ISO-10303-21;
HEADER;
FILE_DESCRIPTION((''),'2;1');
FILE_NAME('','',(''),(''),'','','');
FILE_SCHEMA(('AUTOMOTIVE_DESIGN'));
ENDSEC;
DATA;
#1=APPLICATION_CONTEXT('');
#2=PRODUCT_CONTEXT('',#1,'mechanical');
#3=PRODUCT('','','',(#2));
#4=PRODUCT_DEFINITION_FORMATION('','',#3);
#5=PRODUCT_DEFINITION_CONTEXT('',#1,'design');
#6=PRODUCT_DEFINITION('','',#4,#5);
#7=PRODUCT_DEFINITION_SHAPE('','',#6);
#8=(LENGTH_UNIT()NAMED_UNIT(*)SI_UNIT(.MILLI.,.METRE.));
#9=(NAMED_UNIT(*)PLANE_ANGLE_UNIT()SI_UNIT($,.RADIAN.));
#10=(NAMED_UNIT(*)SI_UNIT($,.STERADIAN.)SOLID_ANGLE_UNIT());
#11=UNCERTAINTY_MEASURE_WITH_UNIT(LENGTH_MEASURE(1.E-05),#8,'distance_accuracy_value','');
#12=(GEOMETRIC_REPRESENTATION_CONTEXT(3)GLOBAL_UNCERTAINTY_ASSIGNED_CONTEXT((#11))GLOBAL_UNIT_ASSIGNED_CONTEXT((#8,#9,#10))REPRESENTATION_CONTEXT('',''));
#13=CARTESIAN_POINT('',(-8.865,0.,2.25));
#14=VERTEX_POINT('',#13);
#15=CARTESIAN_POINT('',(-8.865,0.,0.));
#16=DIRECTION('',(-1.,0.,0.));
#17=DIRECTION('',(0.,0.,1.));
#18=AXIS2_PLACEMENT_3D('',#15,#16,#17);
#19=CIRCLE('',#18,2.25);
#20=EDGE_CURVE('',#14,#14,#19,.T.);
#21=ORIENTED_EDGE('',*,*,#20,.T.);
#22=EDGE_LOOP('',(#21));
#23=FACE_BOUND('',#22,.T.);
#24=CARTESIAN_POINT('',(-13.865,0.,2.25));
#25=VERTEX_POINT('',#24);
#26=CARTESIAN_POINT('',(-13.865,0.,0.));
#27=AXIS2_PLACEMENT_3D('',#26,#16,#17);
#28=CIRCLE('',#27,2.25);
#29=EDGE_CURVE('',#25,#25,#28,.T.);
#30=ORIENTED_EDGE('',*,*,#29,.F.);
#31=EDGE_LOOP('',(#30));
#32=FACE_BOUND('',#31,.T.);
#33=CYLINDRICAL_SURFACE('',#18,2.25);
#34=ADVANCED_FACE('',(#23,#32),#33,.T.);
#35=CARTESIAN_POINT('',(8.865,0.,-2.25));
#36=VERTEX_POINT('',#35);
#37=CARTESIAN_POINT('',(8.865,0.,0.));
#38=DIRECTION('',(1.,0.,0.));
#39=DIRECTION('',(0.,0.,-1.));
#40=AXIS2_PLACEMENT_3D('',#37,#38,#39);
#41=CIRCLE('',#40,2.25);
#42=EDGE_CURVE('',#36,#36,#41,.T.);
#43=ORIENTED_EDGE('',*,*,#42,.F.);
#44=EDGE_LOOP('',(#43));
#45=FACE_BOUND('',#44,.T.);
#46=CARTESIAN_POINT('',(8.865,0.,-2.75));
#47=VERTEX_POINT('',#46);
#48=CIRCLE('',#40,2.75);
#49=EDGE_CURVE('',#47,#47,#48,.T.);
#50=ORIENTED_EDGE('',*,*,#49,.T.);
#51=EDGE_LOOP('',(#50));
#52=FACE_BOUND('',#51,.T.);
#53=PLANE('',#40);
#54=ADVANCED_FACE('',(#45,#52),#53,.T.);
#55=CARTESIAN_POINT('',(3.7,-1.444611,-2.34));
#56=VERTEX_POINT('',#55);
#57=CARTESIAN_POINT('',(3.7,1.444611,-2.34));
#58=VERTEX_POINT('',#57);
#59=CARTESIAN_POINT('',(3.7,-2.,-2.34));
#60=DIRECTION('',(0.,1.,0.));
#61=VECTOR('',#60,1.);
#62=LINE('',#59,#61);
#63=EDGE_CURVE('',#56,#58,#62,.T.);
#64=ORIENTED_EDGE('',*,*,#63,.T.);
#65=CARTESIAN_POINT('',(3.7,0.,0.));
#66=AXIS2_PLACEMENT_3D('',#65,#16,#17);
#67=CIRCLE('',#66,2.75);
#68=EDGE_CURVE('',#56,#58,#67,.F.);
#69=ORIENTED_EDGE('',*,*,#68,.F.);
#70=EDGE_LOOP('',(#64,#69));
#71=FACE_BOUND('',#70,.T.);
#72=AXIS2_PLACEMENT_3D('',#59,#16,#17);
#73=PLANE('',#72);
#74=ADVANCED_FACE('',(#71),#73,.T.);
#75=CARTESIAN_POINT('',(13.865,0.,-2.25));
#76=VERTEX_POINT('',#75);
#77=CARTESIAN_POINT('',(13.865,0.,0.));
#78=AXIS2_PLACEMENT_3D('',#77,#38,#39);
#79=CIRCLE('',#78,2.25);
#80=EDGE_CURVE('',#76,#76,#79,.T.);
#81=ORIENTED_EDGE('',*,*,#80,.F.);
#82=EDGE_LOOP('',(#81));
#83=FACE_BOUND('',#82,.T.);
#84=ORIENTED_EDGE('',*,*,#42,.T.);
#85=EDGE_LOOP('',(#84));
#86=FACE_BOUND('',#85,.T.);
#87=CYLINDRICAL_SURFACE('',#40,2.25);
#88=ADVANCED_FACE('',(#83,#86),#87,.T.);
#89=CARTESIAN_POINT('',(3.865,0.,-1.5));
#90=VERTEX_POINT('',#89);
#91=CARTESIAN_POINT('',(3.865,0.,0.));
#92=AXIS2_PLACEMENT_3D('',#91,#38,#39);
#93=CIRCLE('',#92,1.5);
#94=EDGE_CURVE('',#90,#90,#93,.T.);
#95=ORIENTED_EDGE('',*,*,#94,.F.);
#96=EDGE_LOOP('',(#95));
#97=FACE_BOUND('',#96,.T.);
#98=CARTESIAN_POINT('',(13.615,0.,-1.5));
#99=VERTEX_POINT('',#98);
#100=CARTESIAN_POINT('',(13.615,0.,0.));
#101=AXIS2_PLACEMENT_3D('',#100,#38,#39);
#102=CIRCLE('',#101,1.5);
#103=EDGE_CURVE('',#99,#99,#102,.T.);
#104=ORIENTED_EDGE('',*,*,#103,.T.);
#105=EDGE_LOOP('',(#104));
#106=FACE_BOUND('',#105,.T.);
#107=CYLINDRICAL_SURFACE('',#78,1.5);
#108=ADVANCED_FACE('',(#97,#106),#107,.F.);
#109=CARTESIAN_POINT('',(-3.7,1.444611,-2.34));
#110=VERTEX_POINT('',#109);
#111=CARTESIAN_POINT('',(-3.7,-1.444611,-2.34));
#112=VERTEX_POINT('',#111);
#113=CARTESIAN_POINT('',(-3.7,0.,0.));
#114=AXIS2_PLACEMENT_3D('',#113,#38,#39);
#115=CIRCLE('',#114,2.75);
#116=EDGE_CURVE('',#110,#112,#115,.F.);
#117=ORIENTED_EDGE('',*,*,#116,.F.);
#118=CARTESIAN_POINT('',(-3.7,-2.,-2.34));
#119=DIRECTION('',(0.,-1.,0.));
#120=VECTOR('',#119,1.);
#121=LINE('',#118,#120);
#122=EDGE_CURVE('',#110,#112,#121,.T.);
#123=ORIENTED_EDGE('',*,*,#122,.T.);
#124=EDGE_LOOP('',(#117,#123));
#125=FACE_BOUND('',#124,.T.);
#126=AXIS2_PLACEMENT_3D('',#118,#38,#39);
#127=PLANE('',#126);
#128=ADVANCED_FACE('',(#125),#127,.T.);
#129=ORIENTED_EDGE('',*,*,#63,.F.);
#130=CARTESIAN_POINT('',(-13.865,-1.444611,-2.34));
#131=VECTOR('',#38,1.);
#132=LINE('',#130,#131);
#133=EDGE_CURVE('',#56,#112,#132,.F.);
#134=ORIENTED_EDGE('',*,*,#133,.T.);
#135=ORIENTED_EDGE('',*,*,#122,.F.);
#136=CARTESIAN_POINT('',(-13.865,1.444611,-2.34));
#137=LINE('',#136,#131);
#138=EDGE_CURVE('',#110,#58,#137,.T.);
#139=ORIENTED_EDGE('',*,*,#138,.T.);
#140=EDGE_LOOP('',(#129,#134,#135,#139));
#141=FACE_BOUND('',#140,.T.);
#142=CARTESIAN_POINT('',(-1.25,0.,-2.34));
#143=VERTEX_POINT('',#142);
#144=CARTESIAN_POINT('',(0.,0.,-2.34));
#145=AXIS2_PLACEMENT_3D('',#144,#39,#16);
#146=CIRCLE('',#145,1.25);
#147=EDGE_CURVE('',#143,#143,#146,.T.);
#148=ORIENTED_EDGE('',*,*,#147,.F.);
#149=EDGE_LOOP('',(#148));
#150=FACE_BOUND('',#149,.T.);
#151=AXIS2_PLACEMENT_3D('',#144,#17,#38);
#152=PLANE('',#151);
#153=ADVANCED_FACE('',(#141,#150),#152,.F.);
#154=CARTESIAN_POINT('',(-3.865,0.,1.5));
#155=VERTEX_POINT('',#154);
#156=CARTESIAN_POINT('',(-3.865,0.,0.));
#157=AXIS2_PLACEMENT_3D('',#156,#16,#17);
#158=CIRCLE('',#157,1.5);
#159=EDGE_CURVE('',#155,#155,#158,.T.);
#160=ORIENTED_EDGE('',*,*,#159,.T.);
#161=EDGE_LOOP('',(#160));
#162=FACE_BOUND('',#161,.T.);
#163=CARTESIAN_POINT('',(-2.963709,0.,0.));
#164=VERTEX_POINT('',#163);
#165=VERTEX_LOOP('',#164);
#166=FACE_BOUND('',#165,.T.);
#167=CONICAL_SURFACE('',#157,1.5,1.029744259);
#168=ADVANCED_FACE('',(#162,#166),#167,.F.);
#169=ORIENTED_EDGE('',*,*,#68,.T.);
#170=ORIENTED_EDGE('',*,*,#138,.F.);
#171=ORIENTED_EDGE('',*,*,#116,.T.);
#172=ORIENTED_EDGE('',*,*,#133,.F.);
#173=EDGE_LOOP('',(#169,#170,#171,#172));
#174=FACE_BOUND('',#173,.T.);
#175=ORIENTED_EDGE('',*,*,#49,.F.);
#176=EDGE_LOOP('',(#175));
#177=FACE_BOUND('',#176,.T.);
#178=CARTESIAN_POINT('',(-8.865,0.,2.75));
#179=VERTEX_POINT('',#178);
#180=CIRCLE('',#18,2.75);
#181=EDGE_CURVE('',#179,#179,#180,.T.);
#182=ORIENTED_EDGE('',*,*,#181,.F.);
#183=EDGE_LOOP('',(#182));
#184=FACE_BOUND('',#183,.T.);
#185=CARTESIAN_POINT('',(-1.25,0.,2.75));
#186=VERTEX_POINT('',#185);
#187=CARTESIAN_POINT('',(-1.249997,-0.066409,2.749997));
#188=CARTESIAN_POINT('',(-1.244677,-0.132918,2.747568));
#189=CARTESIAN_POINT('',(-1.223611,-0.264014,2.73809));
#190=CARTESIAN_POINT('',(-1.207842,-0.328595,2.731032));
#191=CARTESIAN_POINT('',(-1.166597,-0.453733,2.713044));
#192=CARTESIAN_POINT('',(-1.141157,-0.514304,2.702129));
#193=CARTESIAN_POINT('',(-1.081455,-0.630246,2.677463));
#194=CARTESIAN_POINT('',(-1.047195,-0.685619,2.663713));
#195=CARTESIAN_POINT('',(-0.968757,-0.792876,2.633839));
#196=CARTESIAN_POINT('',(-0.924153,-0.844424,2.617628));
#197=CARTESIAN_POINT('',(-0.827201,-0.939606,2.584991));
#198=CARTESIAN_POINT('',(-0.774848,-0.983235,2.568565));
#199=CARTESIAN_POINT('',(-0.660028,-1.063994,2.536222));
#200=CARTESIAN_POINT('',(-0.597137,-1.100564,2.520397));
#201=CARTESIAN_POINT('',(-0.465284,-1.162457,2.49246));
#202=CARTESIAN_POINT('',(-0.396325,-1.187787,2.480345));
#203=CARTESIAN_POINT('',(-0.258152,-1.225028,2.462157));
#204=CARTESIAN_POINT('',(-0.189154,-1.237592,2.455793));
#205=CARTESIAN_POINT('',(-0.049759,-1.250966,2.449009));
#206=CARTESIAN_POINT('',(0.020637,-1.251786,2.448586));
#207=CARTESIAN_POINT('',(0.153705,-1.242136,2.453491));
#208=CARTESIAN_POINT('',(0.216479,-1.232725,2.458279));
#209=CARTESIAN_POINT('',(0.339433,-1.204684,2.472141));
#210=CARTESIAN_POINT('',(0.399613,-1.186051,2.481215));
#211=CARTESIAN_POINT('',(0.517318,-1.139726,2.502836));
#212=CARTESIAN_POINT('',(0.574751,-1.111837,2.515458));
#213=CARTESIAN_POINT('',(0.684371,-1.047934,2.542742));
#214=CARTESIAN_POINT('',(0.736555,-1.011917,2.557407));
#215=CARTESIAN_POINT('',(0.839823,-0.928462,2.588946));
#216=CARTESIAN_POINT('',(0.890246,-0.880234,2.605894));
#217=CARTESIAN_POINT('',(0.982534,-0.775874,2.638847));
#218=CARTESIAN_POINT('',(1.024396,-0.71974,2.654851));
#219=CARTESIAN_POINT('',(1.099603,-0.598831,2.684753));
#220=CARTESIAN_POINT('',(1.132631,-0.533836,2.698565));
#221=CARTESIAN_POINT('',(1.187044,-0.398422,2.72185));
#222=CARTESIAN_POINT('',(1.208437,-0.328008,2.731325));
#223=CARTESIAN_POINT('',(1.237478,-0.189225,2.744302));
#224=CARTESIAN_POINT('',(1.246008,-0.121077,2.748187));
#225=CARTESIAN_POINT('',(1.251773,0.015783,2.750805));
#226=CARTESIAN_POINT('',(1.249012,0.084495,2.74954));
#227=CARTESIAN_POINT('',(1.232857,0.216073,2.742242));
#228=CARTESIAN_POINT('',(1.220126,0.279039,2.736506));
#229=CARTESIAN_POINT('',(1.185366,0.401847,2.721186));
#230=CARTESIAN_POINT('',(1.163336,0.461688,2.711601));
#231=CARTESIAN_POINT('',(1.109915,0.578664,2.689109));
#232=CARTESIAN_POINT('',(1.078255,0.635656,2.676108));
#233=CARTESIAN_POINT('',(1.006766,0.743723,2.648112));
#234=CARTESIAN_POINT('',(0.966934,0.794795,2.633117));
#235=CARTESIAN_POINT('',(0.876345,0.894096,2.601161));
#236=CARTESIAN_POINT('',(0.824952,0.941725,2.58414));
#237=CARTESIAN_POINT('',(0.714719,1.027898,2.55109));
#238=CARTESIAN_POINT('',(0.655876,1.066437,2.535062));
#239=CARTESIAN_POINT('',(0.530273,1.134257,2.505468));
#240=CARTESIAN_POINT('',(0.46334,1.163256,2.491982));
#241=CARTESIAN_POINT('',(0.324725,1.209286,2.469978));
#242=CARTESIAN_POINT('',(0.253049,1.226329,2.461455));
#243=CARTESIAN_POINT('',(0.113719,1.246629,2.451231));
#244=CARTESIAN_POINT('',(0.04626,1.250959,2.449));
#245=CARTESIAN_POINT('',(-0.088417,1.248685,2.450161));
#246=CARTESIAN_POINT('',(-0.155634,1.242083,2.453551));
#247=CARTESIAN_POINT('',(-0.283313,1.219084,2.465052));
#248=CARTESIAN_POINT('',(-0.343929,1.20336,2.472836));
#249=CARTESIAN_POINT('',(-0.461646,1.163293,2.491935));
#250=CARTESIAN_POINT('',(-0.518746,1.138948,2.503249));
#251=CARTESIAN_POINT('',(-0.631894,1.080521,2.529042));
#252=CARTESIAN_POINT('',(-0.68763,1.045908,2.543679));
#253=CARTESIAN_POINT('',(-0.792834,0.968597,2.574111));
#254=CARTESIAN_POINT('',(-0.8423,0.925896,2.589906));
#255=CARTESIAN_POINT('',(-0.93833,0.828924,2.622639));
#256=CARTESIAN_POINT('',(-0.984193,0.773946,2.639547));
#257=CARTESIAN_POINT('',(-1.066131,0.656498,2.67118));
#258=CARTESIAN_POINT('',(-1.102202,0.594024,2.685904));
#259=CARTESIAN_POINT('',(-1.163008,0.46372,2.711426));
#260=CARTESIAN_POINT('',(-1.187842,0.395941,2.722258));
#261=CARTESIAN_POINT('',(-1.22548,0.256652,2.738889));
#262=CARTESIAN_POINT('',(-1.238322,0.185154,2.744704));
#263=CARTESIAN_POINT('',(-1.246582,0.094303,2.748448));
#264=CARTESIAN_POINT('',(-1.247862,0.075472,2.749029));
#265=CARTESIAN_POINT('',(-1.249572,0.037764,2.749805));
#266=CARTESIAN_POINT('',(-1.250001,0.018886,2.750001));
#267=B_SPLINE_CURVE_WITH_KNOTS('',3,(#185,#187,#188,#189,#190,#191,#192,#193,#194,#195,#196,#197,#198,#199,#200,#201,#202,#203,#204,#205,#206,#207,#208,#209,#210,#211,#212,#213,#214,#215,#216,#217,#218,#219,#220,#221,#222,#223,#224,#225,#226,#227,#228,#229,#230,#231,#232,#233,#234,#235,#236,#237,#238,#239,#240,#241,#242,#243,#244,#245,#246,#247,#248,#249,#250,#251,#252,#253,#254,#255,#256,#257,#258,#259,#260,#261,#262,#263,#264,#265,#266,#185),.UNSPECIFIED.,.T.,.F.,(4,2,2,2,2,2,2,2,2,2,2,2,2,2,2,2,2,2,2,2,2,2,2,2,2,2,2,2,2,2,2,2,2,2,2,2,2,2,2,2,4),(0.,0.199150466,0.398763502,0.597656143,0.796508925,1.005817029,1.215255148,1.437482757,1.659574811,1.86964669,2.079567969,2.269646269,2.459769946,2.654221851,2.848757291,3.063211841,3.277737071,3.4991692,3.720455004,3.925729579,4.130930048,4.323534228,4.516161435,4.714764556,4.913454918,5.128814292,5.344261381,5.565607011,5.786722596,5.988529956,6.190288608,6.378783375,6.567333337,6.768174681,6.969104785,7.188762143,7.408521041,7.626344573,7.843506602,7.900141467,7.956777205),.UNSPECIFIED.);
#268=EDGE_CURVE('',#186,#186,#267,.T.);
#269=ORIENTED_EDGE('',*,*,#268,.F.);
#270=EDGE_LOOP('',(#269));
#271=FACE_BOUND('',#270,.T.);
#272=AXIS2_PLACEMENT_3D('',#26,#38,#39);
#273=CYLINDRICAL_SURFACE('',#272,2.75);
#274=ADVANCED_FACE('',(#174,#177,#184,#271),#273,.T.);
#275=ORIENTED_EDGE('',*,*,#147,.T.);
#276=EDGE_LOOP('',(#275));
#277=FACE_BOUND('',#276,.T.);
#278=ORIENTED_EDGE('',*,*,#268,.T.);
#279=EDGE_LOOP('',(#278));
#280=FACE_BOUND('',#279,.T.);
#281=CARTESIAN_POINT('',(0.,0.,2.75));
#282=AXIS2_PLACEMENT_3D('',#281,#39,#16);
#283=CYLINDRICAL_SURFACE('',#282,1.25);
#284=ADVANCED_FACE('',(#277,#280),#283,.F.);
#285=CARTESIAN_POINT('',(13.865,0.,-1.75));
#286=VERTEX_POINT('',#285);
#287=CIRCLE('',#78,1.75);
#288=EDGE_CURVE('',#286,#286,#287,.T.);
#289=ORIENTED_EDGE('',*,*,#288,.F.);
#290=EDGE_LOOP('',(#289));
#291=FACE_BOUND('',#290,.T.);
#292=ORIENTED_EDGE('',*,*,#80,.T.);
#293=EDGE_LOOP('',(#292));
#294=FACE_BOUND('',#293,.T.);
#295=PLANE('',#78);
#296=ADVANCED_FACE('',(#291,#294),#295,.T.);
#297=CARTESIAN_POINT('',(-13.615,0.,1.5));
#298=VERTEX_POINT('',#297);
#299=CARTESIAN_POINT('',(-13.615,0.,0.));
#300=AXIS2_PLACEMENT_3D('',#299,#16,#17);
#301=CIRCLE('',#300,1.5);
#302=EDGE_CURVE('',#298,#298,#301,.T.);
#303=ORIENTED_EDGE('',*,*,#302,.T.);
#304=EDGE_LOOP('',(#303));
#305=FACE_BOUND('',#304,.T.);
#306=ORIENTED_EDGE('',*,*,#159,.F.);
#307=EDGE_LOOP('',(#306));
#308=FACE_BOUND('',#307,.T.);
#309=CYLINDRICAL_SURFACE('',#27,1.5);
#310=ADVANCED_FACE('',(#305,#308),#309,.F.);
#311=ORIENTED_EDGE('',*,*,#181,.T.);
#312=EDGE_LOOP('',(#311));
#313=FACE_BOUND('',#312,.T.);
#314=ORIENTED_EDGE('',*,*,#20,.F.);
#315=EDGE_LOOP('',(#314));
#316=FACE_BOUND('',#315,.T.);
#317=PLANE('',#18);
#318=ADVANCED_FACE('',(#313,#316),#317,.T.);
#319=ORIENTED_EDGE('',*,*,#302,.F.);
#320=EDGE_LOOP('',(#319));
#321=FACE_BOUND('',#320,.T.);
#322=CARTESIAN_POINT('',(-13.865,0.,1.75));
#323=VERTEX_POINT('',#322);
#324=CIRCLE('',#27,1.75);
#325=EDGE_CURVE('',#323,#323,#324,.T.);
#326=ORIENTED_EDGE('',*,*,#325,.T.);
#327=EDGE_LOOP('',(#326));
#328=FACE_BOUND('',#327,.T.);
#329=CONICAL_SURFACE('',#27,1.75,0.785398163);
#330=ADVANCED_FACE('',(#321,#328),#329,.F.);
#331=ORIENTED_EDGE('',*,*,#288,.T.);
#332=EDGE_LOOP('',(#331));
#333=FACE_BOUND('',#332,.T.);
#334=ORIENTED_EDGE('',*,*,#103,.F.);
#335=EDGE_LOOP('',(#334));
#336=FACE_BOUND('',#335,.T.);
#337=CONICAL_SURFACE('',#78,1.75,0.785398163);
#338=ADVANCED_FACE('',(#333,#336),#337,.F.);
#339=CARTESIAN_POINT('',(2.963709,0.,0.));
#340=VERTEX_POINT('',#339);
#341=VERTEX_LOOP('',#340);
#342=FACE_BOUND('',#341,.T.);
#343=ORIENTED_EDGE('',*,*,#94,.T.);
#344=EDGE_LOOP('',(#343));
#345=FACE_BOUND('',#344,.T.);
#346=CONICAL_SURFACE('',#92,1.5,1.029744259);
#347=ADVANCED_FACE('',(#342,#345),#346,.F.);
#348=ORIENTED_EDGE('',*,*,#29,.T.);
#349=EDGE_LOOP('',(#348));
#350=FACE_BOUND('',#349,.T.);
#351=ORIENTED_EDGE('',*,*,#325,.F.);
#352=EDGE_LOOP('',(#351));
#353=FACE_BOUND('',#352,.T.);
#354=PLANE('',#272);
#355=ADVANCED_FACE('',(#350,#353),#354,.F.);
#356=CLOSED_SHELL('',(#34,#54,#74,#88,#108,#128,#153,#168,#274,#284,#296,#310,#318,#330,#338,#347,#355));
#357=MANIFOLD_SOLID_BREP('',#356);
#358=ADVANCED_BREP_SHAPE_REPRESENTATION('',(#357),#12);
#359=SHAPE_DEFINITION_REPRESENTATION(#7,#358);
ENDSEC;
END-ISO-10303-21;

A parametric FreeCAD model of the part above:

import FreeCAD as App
import Part
import Sketcher
from FreeCAD import Vector
Q = App.Units.Quantity

doc = App.newDocument("Part")
body = doc.addObject("PartDesign::Body", "Body")

# Sketch on YZ plane
sketch1 = doc.addObject("Sketcher::SketchObject", "Sketch")
body.addObject(sketch1)
sketch1.AttachmentSupport = (doc.YZ_Plane, [""])
sketch1.MapMode = "FlatFace"
sketch1.addGeometry(Part.Circle(Vector(0, 0, 0), Vector(0, 0, 1), 2.8), False)
sketch1.addConstraint([
    Sketcher.Constraint("Coincident", 0, 3, -1, 1),
    Sketcher.Constraint("Diameter", 0, Q("5.5 mm")),
])
pad1 = doc.addObject("PartDesign::Pad", "Pad")
body.addObject(pad1)
pad1.Profile = sketch1
pad1.Type = "TwoLengths"
pad1.Length = 13.865
pad1.Length2 = 13.865

# Sketch on YZ plane
sketch2 = doc.addObject("Sketcher::SketchObject", "Sketch001")
body.addObject(sketch2)
sketch2.AttachmentSupport = (doc.YZ_Plane, [""])
sketch2.MapMode = "FlatFace"
sketch2.AttachmentOffset = App.Placement(Vector(0, 0, 13.865), App.Rotation())
sketch2.addGeometry([
    Part.Circle(Vector(0, 0, 0), Vector(0, 0, 1), 2.8),
    Part.Circle(Vector(0, 0, 0), Vector(0, 0, 1), 2.2),
], False)
sketch2.addConstraint([
    Sketcher.Constraint("Coincident", 0, 3, -1, 1),
    Sketcher.Constraint("Coincident", 1, 3, -1, 1),
    Sketcher.Constraint("Diameter", 0, Q("5.5 mm")),
    Sketcher.Constraint("Diameter", 1, Q("4.5 mm")),
])
pocket1 = doc.addObject("PartDesign::Pocket", "Pocket")
body.addObject(pocket1)
pocket1.Profile = sketch2
pocket1.Length = 5

# Sketch on YZ plane
sketch3 = doc.addObject("Sketcher::SketchObject", "Sketch002")
body.addObject(sketch3)
sketch3.AttachmentSupport = (doc.YZ_Plane, [""])
sketch3.MapMode = "FlatFace"
sketch3.AttachmentOffset = App.Placement(Vector(0, 0, -8.865), App.Rotation())
sketch3.addGeometry([
    Part.Circle(Vector(0, 0, 0), Vector(0, 0, 1), 2.8),
    Part.Circle(Vector(0, 0, 0), Vector(0, 0, 1), 2.2),
], False)
sketch3.addConstraint([
    Sketcher.Constraint("Coincident", 0, 3, -1, 1),
    Sketcher.Constraint("Coincident", 1, 3, -1, 1),
    Sketcher.Constraint("Diameter", 0, Q("5.5 mm")),
    Sketcher.Constraint("Diameter", 1, Q("4.5 mm")),
])
pocket2 = doc.addObject("PartDesign::Pocket", "Pocket001")
body.addObject(pocket2)
pocket2.Profile = sketch3
pocket2.Length = 5

# Sketch on YZ plane
sketch4 = doc.addObject("Sketcher::SketchObject", "Sketch003")
body.addObject(sketch4)
sketch4.AttachmentSupport = (doc.YZ_Plane, [""])
sketch4.MapMode = "FlatFace"
sketch4.AttachmentOffset = App.Placement(Vector(0, 0, -13.865), App.Rotation())
sketch4.addGeometry(Part.Circle(Vector(0, 0, 0), Vector(0, 0, 1), 1.5), False)
sketch4.addConstraint([
    Sketcher.Constraint("Coincident", 0, 3, -1, 1),
    Sketcher.Constraint("Diameter", 0, Q("3 mm")),
])
doc.recompute()
hole = doc.addObject("PartDesign::Hole", "Hole")
body.addObject(hole)
hole.Profile = sketch4
hole.ThreadType = "None"
hole.Diameter = 3
hole.DepthType = "Dimension"
hole.Depth = 10
hole.DrillPoint = "Angled"
hole.DrillPointAngle = 118
hole.HoleCutType = "Countersink"
hole.HoleCutDiameter = 3.5
hole.HoleCutCountersinkAngle = 90
hole.Reversed = True

# Sketch on YZ plane
sketch5 = doc.addObject("Sketcher::SketchObject", "Sketch004")
body.addObject(sketch5)
sketch5.AttachmentSupport = (doc.YZ_Plane, [""])
sketch5.MapMode = "FlatFace"
sketch5.AttachmentOffset = App.Placement(Vector(0, 0, 13.865), App.Rotation())
sketch5.addGeometry(Part.Circle(Vector(0, 0, 0), Vector(0, 0, 1), 1.5), False)
sketch5.addConstraint([
    Sketcher.Constraint("Coincident", 0, 3, -1, 1),
    Sketcher.Constraint("Diameter", 0, Q("3 mm")),
])
doc.recompute()
hole2 = doc.addObject("PartDesign::Hole", "Hole001")
body.addObject(hole2)
hole2.Profile = sketch5
hole2.ThreadType = "None"
hole2.Diameter = 3
hole2.DepthType = "Dimension"
hole2.Depth = 10
hole2.DrillPoint = "Angled"
hole2.DrillPointAngle = 118
hole2.HoleCutType = "Countersink"
hole2.HoleCutDiameter = 3.5
hole2.HoleCutCountersinkAngle = 90

# Sketch on XY plane
sketch6 = doc.addObject("Sketcher::SketchObject", "Sketch005")
body.addObject(sketch6)
sketch6.AttachmentSupport = (doc.XY_Plane, [""])
sketch6.MapMode = "FlatFace"
sketch6.AttachmentOffset = App.Placement(Vector(0, 0, -5.34), App.Rotation())
sketch6.addGeometry([
    Part.LineSegment(Vector(-3.7, 2, 0), Vector(-3.7, -2, 0)),
    Part.LineSegment(Vector(-3.7, -2, 0), Vector(3.7, -2, 0)),
    Part.LineSegment(Vector(3.7, -2, 0), Vector(3.7, 2, 0)),
    Part.LineSegment(Vector(3.7, 2, 0), Vector(-3.7, 2, 0)),
], False)
sketch6.addConstraint([
    Sketcher.Constraint("Coincident", 0, 2, 1, 1),
    Sketcher.Constraint("Coincident", 1, 2, 2, 1),
    Sketcher.Constraint("Coincident", 2, 2, 3, 1),
    Sketcher.Constraint("Coincident", 3, 2, 0, 1),
    Sketcher.Constraint("Vertical", 0),
    Sketcher.Constraint("Horizontal", 1),
    Sketcher.Constraint("Vertical", 2),
    Sketcher.Constraint("Horizontal", 3),
    Sketcher.Constraint("Symmetric", 0, 2, 2, 2, -1, 1),
    Sketcher.Constraint("DistanceY", 0, 2, 0, 1, Q("4 mm")),
    Sketcher.Constraint("DistanceX", 1, 1, 1, 2, Q("7.4 mm")),
])
pocket3 = doc.addObject("PartDesign::Pocket", "Pocket002")
body.addObject(pocket3)
pocket3.Profile = sketch6
pocket3.Length = 3
pocket3.Reversed = True

# Sketch on XY plane
sketch7 = doc.addObject("Sketcher::SketchObject", "Sketch006")
body.addObject(sketch7)
sketch7.AttachmentSupport = (doc.XY_Plane, [""])
sketch7.MapMode = "FlatFace"
sketch7.AttachmentOffset = App.Placement(Vector(0, 0, -2.34), App.Rotation())
sketch7.addGeometry(Part.Circle(Vector(0, 0, 0), Vector(0, 0, 1), 1.2), False)
sketch7.addConstraint([
    Sketcher.Constraint("Coincident", 0, 3, -1, 1),
    Sketcher.Constraint("Diameter", 0, Q("2.5 mm")),
])
pocket4 = doc.addObject("PartDesign::Pocket", "Pocket003")
body.addObject(pocket4)
pocket4.Profile = sketch7
pocket4.Type = "ThroughAll"
pocket4.Reversed = True

doc.recompute()
